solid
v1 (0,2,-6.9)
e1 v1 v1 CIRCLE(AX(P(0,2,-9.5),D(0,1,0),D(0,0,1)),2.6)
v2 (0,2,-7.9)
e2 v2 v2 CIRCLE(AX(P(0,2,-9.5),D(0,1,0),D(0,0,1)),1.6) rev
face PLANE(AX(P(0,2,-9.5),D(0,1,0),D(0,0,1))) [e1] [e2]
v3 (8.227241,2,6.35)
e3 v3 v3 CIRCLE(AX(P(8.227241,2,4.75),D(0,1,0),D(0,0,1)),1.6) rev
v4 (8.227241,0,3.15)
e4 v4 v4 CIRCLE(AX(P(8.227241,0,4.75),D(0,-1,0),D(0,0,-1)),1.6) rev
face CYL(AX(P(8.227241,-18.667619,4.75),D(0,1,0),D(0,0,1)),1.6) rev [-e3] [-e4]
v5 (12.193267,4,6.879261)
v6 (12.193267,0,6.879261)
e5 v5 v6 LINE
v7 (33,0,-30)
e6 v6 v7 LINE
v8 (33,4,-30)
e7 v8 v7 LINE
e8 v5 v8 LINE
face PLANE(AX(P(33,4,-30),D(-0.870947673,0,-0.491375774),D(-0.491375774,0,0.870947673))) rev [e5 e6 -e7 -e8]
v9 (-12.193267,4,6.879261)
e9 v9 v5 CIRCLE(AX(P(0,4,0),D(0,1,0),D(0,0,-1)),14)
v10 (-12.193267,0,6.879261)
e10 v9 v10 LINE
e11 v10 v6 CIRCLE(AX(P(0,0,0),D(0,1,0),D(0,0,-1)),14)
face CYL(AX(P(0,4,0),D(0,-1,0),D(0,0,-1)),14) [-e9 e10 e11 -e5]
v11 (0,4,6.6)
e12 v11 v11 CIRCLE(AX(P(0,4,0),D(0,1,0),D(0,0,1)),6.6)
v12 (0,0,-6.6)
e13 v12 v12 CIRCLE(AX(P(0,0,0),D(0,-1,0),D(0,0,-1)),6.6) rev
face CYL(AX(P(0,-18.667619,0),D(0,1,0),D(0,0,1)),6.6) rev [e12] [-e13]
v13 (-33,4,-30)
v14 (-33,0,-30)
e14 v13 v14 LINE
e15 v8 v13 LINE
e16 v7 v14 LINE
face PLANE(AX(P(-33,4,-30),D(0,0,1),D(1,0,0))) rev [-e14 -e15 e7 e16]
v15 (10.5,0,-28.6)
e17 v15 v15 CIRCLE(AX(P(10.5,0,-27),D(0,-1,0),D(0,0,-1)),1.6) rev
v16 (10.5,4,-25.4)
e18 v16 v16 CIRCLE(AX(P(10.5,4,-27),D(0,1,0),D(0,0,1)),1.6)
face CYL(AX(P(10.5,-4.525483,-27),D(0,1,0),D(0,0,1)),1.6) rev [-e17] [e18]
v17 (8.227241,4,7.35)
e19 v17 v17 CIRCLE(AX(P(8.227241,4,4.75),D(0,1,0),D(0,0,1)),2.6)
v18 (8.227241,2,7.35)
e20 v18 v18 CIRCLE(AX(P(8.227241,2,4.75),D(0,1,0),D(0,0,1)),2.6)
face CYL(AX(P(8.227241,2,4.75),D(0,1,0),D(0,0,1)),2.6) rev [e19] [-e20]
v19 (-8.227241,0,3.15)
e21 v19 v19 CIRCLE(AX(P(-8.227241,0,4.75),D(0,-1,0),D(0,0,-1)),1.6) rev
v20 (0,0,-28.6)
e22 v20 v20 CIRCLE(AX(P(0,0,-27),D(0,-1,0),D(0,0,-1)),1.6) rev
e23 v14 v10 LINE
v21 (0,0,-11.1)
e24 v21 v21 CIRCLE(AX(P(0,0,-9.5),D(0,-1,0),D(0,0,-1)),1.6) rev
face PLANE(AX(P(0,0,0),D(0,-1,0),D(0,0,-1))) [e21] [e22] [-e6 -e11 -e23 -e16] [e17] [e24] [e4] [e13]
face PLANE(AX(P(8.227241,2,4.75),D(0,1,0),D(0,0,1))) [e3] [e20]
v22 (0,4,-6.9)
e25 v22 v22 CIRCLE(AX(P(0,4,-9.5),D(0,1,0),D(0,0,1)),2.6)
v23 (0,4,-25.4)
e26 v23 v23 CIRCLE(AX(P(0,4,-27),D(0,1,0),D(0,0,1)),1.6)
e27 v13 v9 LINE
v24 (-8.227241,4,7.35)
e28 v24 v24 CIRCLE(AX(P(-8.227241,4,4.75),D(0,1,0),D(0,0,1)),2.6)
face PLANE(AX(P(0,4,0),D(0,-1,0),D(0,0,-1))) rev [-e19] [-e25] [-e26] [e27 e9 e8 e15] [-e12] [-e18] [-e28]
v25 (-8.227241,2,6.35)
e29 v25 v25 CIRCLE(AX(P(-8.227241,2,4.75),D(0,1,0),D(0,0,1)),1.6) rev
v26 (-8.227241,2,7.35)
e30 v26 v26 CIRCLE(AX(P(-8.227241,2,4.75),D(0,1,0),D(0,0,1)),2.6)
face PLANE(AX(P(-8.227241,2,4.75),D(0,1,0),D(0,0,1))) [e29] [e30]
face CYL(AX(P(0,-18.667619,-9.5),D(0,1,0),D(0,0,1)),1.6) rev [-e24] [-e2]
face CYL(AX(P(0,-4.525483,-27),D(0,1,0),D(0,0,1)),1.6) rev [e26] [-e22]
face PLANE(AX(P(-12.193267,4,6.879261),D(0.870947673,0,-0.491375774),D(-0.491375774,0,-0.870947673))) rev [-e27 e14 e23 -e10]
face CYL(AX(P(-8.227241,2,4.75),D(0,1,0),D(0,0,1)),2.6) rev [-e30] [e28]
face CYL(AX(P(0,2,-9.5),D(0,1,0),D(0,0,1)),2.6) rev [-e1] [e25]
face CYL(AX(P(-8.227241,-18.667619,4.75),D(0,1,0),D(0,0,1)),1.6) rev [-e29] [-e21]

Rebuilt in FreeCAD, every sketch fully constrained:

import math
import FreeCAD as App
import Part
import Sketcher

V = App.Vector

doc = App.newDocument("Part")
body = doc.addObject("PartDesign::Body", "Body")

# Sketch on XZ plane
sketch1 = doc.addObject("Sketcher::SketchObject", "Sketch")
body.addObject(sketch1)
sketch1.AttachmentSupport = (doc.XZ_Plane, [""])
sketch1.MapMode = "FlatFace"
sketch1.addGeometry([
    Part.LineSegment(V(12, 7, 0), V(33, -30, 0)),
    Part.LineSegment(V(33, -30, 0), V(-33, -30, 0)),
    Part.LineSegment(V(-33, -30, 0), V(-12, 7, 0)),
    Part.ArcOfCircle(Part.Circle(V(0, 0, 0), V(0, 0, 1), 14), math.radians(29), math.radians(151)),
], False)
sketch1.addConstraint([
    Sketcher.Constraint("Coincident", 0, 2, 1, 1),
    Sketcher.Constraint("Coincident", 1, 2, 2, 1),
    Sketcher.Constraint("Tangent", 2, 2, 3, 2),
    Sketcher.Constraint("Tangent", 3, 1, 0, 1),
    Sketcher.Constraint("Horizontal", 1),
    Sketcher.Constraint("Coincident", 3, 3, -1, 1),
    Sketcher.Constraint("Horizontal", 2, 2, 3, 1),
    Sketcher.Constraint("Radius", 3, 14.0),
    Sketcher.Constraint("DistanceX", 1, 2, 1, 1, 66.0),
    Sketcher.Constraint("DistanceY", 0, 2, -1, 1, 30.0),
])
pad1 = doc.addObject("PartDesign::Pad", "Pad")
body.addObject(pad1)
pad1.Profile = sketch1
pad1.Length = 4
pad1.Reversed = True

# Sketch on XZ plane
sketch2 = doc.addObject("Sketcher::SketchObject", "Sketch001")
body.addObject(sketch2)
sketch2.AttachmentSupport = (doc.XZ_Plane, [""])
sketch2.MapMode = "FlatFace"
sketch2.AttachmentOffset = App.Placement(V(0, 0, -4), App.Rotation())
sketch2.addGeometry([
    Part.Circle(V(-8.2, 4.8, 0), V(0, 0, 1), 1.6),
    Part.Circle(V(8.2, 4.8, 0), V(0, 0, 1), 1.6),
    Part.Circle(V(0, 0, 0), V(0, 0, 1), 6.6),
    Part.Circle(V(0, -9.5, 0), V(0, 0, 1), 1.6),
], False)
sketch2.addConstraint([
    Sketcher.Constraint("Coincident", 2, 3, -1, 1),
    Sketcher.Constraint("Equal", 0, 1),
    Sketcher.Constraint("Equal", 1, 3),
    Sketcher.Constraint("Symmetric", 0, 3, 1, 3, -2),
    Sketcher.Constraint("PointOnObject", 3, 3, -2),
    Sketcher.Constraint("Diameter", 0, 3.2),
    Sketcher.Constraint("Diameter", 2, 13.2),
    Sketcher.Constraint("DistanceY", 3, 3, -1, 1, 9.5),
    Sketcher.Constraint("DistanceY", -1, 1, 0, 3, 4.75),
    Sketcher.Constraint("DistanceX", 0, 3, -1, 1, 8.227241),
])
pocket1 = doc.addObject("PartDesign::Pocket", "Pocket")
body.addObject(pocket1)
pocket1.Profile = sketch2
pocket1.Length = 4
pocket1.Reversed = True

# Sketch on XZ plane
sketch3 = doc.addObject("Sketcher::SketchObject", "Sketch002")
body.addObject(sketch3)
sketch3.AttachmentSupport = (doc.XZ_Plane, [""])
sketch3.MapMode = "FlatFace"
sketch3.AttachmentOffset = App.Placement(V(0, 0, -4), App.Rotation())
sketch3.addGeometry([
    Part.Circle(V(0, -27, 0), V(0, 0, 1), 1.6),
    Part.Circle(V(10.5, -27, 0), V(0, 0, 1), 1.6),
], False)
sketch3.addConstraint([
    Sketcher.Constraint("Equal", 0, 1),
    Sketcher.Constraint("PointOnObject", 0, 3, -2),
    Sketcher.Constraint("Horizontal", 0, 3, 1, 3),
    Sketcher.Constraint("Diameter", 0, 3.2),
    Sketcher.Constraint("DistanceY", 0, 3, -1, 1, 27.0),
    Sketcher.Constraint("DistanceX", -1, 1, 1, 3, 10.5),
])
pocket2 = doc.addObject("PartDesign::Pocket", "Pocket001")
body.addObject(pocket2)
pocket2.Profile = sketch3
pocket2.Length = 4
pocket2.Reversed = True

# Sketch on XZ plane
sketch4 = doc.addObject("Sketcher::SketchObject", "Sketch003")
body.addObject(sketch4)
sketch4.AttachmentSupport = (doc.XZ_Plane, [""])
sketch4.MapMode = "FlatFace"
sketch4.AttachmentOffset = App.Placement(V(0, 0, -4), App.Rotation())
sketch4.addGeometry([
    Part.Circle(V(0, -9.5, 0), V(0, 0, 1), 2.6),
    Part.Circle(V(8.2, 4.8, 0), V(0, 0, 1), 2.6),
    Part.Circle(V(-8.2, 4.8, 0), V(0, 0, 1), 2.6),
], False)
sketch4.addConstraint([
    Sketcher.Constraint("Equal", 0, 1),
    Sketcher.Constraint("Equal", 1, 2),
    Sketcher.Constraint("Symmetric", 1, 3, 2, 3, -2),
    Sketcher.Constraint("PointOnObject", 0, 3, -2),
    Sketcher.Constraint("Diameter", 0, 5.2),
    Sketcher.Constraint("DistanceY", 0, 3, -1, 1, 9.5),
    Sketcher.Constraint("DistanceY", -1, 1, 1, 3, 4.75),
    Sketcher.Constraint("DistanceX", -1, 1, 1, 3, 8.227241),
])
pocket3 = doc.addObject("PartDesign::Pocket", "Pocket002")
body.addObject(pocket3)
pocket3.Profile = sketch4
pocket3.Length = 2
pocket3.Reversed = True

doc.recompute()
